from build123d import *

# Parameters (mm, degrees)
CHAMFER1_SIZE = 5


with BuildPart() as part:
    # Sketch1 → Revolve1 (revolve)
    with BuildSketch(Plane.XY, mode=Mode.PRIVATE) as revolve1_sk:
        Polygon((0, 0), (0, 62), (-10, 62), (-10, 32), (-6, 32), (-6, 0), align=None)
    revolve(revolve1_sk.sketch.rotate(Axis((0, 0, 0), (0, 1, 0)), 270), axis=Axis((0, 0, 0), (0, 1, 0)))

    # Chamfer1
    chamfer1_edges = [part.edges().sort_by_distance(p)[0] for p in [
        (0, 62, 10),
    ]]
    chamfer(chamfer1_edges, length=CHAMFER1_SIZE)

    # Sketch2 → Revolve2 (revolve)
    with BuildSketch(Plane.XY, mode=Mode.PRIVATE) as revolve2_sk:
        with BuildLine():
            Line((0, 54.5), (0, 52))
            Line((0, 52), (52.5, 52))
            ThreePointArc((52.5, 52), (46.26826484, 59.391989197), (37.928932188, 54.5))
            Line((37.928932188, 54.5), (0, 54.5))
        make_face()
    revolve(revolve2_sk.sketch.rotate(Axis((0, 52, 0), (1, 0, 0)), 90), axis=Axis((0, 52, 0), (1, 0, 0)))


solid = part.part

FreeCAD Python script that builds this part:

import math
import FreeCAD as App
import Part
import Sketcher

V = App.Vector


def edges_at(feature, points):
    """Names of the edges that pass closest to the given points."""
    edges = feature.Shape.Edges
    near = lambda p: min(range(len(edges)), key=lambda i: edges[i].distToShape(Part.Vertex(*p))[0])
    return sorted({f"Edge{near(p) + 1}" for p in points})

doc = App.newDocument("Part")
body = doc.addObject("PartDesign::Body", "Body")

# Sketch on XY plane
sketch1 = body.newObject("Sketcher::SketchObject", "Sketch")
sketch1.AttachmentSupport = (doc.getObject("XY_Plane"), [""])
sketch1.MapMode = "FlatFace"
sketch1.addGeometry([
    Part.LineSegment(V(0, 0, 0), V(0, 62, 0)),  # 0
    Part.LineSegment(V(0, 62, 0), V(-10, 62, 0)),  # 1
    Part.LineSegment(V(-10, 62, 0), V(-10, 32, 0)),  # 2
    Part.LineSegment(V(-10, 32, 0), V(-6, 32, 0)),  # 3
    Part.LineSegment(V(-6, 32, 0), V(-6, 0, 0)),  # 4
    Part.LineSegment(V(-6, 0, 0), V(0, 0, 0)),  # 5
], False)
sketch1.addConstraint([
    Sketcher.Constraint("Coincident", 0, 2, 1, 1),
    Sketcher.Constraint("Coincident", 1, 2, 2, 1),
    Sketcher.Constraint("Coincident", 2, 2, 3, 1),
    Sketcher.Constraint("Coincident", 3, 2, 4, 1),
    Sketcher.Constraint("Coincident", 4, 2, 5, 1),
    Sketcher.Constraint("Coincident", 5, 2, 0, 1),
    Sketcher.Constraint("Vertical", 0),
    Sketcher.Constraint("Horizontal", 1),
    Sketcher.Constraint("Vertical", 2),
    Sketcher.Constraint("Horizontal", 3),
    Sketcher.Constraint("Vertical", 4),
    Sketcher.Constraint("Horizontal", 5),
    Sketcher.Constraint("Coincident", 5, 2, -1, 1),
    Sketcher.Constraint("DistanceX", 1, 2, 1, 1, 10.0),
    Sketcher.Constraint("DistanceX", 3, 1, 3, 2, 4.0),
    Sketcher.Constraint("DistanceY", 0, 1, 0, 2, 62.0),
    Sketcher.Constraint("DistanceY", 2, 2, 2, 1, 30.0),
])
revolution = body.newObject("PartDesign::Revolution", "Revolution")
revolution.Profile = sketch1
revolution.ReferenceAxis = (sketch1, ["V_Axis"])
revolution.Angle = 360
doc.recompute()

chamfer = body.newObject("PartDesign::Chamfer", "Chamfer")
chamfer.Base = (revolution, edges_at(revolution, [(0, 62, 10)]))
chamfer.Size = 5

# Sketch on XY plane
sketch2 = body.newObject("Sketcher::SketchObject", "Sketch001")
sketch2.AttachmentSupport = (doc.getObject("XY_Plane"), [""])
sketch2.MapMode = "FlatFace"
sketch2.addGeometry([
    Part.LineSegment(V(0, 54.5, 0), V(0, 52, 0)),
    Part.LineSegment(V(0, 52, 0), V(52.5, 52, 0)),
    Part.ArcOfCircle(Part.Circle(V(45, 52, 0), V(0, 0, 1), 7.5), math.radians(0), math.radians(161)),
    Part.LineSegment(V(37.9, 54.5, 0), V(0, 54.5, 0)),
], False)
sketch2.addGeometry(Part.LineSegment(V(0, 52, 0), V(52.5, 52, 0)), True)  # axis
sketch2.addConstraint([
    Sketcher.Constraint("Coincident", 0, 2, 1, 1),
    Sketcher.Constraint("Coincident", 1, 2, 2, 1),
    Sketcher.Constraint("Coincident", 2, 2, 3, 1),
    Sketcher.Constraint("Coincident", 3, 2, 0, 1),
    Sketcher.Constraint("Vertical", 0),
    Sketcher.Constraint("Horizontal", 1),
    Sketcher.Constraint("Horizontal", 3),
    Sketcher.Constraint("Horizontal", 4),
    Sketcher.Constraint("Coincident", 4, 1, 0, 2),
    Sketcher.Constraint("PointOnObject", 0, 2, -2),
    Sketcher.Constraint("Horizontal", 2, 3, 0, 2),
    Sketcher.Constraint("Equal", 1, 4),
    Sketcher.Constraint("Radius", 2, 7.5),
    Sketcher.Constraint("DistanceX", 1, 1, 1, 2, 52.5),
    Sketcher.Constraint("DistanceY", 0, 2, 0, 1, 2.5),
    Sketcher.Constraint("DistanceY", -1, 1, 2, 3, 52.0),
])
revolution2 = body.newObject("PartDesign::Revolution", "Revolution001")
revolution2.Profile = sketch2
revolution2.ReferenceAxis = (sketch2, ["Axis0"])
revolution2.Angle = 360

doc.recompute()
